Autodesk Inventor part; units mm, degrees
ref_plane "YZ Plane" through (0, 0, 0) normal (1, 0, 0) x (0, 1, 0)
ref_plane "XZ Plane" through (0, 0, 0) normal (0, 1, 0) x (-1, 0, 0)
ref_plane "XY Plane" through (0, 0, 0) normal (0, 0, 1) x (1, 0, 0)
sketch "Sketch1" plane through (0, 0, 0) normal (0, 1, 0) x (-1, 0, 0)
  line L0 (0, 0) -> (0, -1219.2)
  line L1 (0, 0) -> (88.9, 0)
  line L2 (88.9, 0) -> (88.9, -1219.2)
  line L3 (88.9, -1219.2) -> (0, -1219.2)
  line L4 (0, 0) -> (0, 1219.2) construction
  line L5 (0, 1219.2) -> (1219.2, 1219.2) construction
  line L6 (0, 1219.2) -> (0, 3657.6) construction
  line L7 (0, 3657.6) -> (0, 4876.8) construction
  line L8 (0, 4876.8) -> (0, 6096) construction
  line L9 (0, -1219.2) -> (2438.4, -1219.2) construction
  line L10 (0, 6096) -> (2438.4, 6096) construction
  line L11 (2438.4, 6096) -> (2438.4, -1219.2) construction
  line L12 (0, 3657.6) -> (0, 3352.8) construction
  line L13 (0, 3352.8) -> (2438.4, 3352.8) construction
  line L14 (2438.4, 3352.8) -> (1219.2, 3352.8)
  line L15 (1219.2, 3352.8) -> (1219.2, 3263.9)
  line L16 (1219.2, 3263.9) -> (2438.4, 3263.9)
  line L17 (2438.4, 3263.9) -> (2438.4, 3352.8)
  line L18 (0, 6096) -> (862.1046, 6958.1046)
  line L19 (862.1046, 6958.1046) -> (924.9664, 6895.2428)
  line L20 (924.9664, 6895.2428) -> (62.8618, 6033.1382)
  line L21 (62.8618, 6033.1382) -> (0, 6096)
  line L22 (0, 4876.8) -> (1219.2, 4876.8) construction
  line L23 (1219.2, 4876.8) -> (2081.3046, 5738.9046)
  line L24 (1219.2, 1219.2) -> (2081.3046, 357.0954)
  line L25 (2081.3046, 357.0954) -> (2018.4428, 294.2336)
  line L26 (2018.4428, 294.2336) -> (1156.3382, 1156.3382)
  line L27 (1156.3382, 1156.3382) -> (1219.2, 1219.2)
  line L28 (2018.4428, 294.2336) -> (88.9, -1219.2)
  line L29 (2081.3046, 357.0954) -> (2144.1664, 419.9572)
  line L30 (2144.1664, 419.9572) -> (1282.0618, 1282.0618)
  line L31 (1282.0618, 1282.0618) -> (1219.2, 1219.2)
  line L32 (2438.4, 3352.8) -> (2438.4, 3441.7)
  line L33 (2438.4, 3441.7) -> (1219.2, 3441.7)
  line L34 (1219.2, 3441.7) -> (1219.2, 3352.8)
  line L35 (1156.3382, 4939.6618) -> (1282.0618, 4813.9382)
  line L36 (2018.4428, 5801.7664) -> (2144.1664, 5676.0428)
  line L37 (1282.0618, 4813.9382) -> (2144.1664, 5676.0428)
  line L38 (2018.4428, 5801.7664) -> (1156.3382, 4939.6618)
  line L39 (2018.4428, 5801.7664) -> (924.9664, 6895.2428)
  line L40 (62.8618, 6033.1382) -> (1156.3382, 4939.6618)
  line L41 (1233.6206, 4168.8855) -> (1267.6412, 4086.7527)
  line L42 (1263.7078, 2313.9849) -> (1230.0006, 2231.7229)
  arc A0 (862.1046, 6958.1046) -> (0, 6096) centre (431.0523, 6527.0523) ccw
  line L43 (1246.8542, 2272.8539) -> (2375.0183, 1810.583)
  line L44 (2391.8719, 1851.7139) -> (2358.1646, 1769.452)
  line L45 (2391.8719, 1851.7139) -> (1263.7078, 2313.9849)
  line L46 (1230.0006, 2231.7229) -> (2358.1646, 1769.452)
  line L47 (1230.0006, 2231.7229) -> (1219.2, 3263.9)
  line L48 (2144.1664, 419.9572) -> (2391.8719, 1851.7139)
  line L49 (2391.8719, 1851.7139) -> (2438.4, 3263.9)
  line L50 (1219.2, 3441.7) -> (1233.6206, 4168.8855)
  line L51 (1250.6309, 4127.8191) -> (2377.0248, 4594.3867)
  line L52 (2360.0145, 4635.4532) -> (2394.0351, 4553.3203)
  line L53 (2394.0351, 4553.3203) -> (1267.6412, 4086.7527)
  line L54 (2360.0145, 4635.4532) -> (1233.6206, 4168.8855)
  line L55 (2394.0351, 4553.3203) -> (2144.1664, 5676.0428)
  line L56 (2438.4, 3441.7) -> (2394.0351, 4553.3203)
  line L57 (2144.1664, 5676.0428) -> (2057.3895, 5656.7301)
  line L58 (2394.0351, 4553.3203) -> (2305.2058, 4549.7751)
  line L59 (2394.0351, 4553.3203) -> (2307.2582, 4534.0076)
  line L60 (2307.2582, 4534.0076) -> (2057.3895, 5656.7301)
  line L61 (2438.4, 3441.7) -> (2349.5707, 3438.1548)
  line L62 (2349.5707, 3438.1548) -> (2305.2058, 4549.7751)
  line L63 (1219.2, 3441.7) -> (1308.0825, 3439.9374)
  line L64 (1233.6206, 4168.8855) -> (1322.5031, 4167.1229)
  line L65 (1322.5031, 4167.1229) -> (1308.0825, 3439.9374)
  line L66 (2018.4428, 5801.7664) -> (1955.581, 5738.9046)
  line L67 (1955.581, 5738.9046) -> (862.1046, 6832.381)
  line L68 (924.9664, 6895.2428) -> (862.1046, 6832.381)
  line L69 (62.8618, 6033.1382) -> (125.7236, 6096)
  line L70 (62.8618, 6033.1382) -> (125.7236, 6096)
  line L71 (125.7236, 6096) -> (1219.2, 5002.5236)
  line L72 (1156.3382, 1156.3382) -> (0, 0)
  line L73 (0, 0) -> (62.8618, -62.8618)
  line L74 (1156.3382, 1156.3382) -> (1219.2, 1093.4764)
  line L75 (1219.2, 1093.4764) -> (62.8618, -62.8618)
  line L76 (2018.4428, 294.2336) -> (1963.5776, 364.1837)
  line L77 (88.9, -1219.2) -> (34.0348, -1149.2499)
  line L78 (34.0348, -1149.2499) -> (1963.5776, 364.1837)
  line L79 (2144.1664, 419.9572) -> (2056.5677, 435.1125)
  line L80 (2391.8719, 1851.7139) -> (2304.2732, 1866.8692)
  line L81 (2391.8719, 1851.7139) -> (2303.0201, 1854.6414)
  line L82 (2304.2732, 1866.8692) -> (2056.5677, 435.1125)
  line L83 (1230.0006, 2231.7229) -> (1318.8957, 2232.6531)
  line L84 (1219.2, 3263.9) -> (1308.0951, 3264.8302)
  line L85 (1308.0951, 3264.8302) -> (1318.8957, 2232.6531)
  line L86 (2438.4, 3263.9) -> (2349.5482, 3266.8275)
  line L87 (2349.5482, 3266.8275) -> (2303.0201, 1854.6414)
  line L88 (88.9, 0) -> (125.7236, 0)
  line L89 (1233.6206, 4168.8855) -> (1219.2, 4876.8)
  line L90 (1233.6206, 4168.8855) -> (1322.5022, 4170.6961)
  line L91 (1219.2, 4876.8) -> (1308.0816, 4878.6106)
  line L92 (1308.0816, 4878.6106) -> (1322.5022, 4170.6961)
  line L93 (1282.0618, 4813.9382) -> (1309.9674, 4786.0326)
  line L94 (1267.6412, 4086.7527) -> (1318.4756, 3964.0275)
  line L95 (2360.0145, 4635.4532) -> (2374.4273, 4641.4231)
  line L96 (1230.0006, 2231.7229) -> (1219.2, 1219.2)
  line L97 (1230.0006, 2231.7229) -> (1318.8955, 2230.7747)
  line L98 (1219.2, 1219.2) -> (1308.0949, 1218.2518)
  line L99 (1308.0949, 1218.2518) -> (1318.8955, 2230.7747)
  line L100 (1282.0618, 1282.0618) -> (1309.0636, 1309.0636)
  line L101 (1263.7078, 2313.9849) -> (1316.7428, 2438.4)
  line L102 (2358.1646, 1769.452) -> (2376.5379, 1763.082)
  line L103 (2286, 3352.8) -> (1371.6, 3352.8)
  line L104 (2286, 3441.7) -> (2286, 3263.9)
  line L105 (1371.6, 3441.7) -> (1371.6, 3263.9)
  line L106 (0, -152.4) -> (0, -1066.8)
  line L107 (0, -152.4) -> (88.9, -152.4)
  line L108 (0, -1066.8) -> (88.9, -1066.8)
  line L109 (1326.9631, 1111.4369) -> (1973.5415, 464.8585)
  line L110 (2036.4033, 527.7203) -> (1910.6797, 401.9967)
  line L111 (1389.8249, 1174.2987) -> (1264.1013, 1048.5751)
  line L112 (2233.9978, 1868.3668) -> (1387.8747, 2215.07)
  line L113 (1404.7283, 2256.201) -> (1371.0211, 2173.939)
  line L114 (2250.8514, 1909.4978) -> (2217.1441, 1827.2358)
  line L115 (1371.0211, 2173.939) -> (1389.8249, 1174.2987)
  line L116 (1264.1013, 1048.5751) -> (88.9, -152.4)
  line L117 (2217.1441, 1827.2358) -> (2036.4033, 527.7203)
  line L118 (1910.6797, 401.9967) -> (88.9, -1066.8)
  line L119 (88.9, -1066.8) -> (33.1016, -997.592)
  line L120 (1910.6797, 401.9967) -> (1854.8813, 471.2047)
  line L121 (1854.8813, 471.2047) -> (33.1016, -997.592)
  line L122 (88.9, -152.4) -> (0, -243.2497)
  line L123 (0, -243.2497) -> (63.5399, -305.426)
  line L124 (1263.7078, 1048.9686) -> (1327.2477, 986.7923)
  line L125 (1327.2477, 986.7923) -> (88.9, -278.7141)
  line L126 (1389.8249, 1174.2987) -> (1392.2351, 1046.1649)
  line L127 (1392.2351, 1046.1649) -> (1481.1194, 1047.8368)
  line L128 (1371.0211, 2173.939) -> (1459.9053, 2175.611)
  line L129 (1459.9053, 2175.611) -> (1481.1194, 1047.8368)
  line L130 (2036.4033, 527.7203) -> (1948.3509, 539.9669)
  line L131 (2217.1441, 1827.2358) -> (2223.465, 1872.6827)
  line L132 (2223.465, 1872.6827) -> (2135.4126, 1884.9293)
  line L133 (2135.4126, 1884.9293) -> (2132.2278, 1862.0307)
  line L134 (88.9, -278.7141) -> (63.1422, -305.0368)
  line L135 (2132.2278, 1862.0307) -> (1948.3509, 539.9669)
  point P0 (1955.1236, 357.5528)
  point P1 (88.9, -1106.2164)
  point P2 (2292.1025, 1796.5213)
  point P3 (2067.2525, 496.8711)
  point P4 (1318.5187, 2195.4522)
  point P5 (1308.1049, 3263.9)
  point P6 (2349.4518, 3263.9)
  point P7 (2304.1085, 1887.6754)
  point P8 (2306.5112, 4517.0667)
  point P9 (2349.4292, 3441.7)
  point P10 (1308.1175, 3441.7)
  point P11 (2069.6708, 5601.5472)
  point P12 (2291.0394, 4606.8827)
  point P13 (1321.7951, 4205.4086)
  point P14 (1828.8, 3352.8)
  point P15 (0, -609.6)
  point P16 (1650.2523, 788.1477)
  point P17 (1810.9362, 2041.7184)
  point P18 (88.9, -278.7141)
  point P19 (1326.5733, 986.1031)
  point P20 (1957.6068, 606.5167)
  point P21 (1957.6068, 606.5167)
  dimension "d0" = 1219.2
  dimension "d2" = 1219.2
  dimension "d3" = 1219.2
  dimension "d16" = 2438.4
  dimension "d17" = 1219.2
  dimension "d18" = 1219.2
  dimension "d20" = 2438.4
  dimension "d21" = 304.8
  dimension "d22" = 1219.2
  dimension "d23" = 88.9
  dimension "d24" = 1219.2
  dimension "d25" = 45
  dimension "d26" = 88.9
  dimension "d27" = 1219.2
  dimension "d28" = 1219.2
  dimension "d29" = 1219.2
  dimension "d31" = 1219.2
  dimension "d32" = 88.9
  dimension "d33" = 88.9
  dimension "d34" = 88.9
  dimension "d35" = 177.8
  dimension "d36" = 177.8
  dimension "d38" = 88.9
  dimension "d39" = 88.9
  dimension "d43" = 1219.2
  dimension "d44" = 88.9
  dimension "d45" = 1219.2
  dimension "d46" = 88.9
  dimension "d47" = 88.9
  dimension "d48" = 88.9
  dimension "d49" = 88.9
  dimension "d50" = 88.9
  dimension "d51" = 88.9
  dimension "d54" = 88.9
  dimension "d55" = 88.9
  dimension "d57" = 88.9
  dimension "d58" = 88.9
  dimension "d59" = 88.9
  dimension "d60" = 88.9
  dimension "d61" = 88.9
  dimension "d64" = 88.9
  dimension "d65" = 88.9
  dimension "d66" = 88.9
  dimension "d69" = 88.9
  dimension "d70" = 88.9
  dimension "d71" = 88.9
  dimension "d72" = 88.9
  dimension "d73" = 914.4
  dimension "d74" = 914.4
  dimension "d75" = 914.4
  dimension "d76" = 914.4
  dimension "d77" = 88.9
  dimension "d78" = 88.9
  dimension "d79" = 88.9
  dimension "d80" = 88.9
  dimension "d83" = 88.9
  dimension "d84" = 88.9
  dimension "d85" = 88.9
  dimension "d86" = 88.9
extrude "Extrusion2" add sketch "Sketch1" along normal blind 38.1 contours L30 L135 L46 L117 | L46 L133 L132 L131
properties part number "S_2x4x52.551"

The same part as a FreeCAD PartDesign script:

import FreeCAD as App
import Part
import Sketcher
from FreeCAD import Vector
Q = App.Units.Quantity


def add_polygon(sketch, points):
    """Adds a closed chain of lines whose ends are joined by coincident constraints."""
    first, n = sketch.GeometryCount, len(points)
    for a, b in zip(points, points[1:] + points[:1]):
        sketch.addGeometry(Part.LineSegment(App.Vector(*a, 0), App.Vector(*b, 0)), False)
    for i in range(n):
        sketch.addConstraint(Sketcher.Constraint("Coincident", first + i, 2, first + (i + 1) % n, 1))

doc = App.newDocument("Part")
body = doc.addObject("PartDesign::Body", "Body")

# Sketch on XZ plane
sketch1 = body.newObject("Sketcher::SketchObject", "Sketch")
sketch1.AttachmentSupport = (doc.getObject("XZ_Plane"), [""])
sketch1.MapMode = "FlatFace"
add_polygon(sketch1, [(-1957.606866, 606.516734), (-2036.4033, 527.7203), (-2217.1441, 1827.2358), (-2223.465, 1872.6827), (-2135.4126, 1884.9293), (-2132.2278, 1862.0307)])  # lines 0-5
sketch1.addConstraint([
    Sketcher.Constraint("Distance", 3, Q("3.5 in")),
    Sketcher.Constraint("DistanceX", 2, 2, -1, 1, Q("87.538 in")),
    Sketcher.Constraint("DistanceX", 3, 2, 0, 2, Q("3.898 in")),
    Sketcher.Constraint("DistanceX", 1, 2, 5, 2, Q("10.218 in")),
    Sketcher.Constraint("Distance", 0, Q("4.3872 in")),
    Sketcher.Constraint("Distance", 1, Q("51.6545 in")),
    Sketcher.Constraint("Distance", 4, Q("0.9102 in")),
    Sketcher.Constraint("DistanceY", -1, 1, 0, 2, Q("20.7764 in")),
    Sketcher.Constraint("DistanceY", -1, 1, 4, 2, Q("73.3083 in")),
    Sketcher.Constraint("DistanceY", -1, 1, 5, 2, Q("23.8786 in")),
    Sketcher.Constraint("DistanceY", 1, 2, 3, 2, Q("2.2714 in")),
    Sketcher.Constraint("Distance", 2, Q("45.8844 mm")),
])
pad1 = body.newObject("PartDesign::Pad", "Pad")
pad1.Profile = sketch1
pad1.Length = Q("1.5 in")
pad1.Reversed = True

doc.recompute()
